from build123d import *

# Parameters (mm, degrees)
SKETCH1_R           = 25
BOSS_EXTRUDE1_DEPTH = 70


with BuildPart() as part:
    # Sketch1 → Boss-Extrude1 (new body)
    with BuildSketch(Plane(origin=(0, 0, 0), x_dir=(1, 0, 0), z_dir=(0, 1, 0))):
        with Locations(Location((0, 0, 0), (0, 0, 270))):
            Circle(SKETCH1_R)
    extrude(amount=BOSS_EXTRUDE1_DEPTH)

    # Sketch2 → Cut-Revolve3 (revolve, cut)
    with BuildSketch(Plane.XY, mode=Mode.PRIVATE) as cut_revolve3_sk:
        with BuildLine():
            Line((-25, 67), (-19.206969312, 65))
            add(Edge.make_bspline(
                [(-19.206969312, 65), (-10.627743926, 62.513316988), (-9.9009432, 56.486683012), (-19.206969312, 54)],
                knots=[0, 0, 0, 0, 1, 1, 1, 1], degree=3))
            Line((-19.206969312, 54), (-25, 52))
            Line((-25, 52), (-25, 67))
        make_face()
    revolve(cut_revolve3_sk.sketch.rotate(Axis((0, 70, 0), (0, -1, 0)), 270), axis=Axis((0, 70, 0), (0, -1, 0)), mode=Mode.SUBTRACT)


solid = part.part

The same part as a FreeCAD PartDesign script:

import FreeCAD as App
import Part
import Sketcher

V = App.Vector
Q = App.Units.Quantity

doc = App.newDocument("Part")
body = doc.addObject("PartDesign::Body", "Body")

# Sketch on XZ plane
sketch1 = doc.addObject("Sketcher::SketchObject", "Sketch")
body.addObject(sketch1)
sketch1.AttachmentSupport = (doc.XZ_Plane, [""])
sketch1.MapMode = "FlatFace"
sketch1.addGeometry(Part.Circle(V(0, 0, 0), V(0, 0, 1), 25), False)
sketch1.addConstraint(Sketcher.Constraint("Coincident", 0, 3, -1, 1))
sketch1.addConstraint(Sketcher.Constraint("Diameter", 0, Q("50 mm")))
pad1 = doc.addObject("PartDesign::Pad", "Pad")
body.addObject(pad1)
pad1.Profile = sketch1
pad1.Length = 70
pad1.Reversed = True

# Sketch on XY plane
sketch2 = doc.addObject("Sketcher::SketchObject", "Sketch001")
body.addObject(sketch2)
sketch2.AttachmentSupport = (doc.XY_Plane, [""])
sketch2.MapMode = "FlatFace"
sketch2.addGeometry(Part.LineSegment(V(-19.206969, 65, 0), V(-25, 67, 0)), False)
sketch2.addGeometry(Part.LineSegment(V(-25, 67, 0), V(-25, 52, 0)), False)
sketch2.addGeometry(Part.LineSegment(V(-25, 52, 0), V(-19.206969, 54, 0)), False)
sketch2.addGeometry(Part.BSplineCurve([V(-19.206969, 65, 0), V(-10.627744, 62.513317, 0), V(-9.900943, 56.486683, 0), V(-19.206969, 54, 0)], [4, 4], [0, 1], False, 3, [1, 1, 1, 1], False), False)
sketch2.addConstraint(Sketcher.Constraint("Block", 3))
sketch2.addConstraint(Sketcher.Constraint("Coincident", 0, 2, 1, 1))
sketch2.addConstraint(Sketcher.Constraint("Coincident", 1, 2, 2, 1))
sketch2.addConstraint(Sketcher.Constraint("Coincident", 2, 2, 3, 2))
sketch2.addConstraint(Sketcher.Constraint("Coincident", 3, 1, 0, 1))
sketch2.addConstraint(Sketcher.Constraint("Vertical", 1))
sketch2.addConstraint(Sketcher.Constraint("Equal", 0, 2))
sketch2.addConstraint(Sketcher.Constraint("DistanceY", 1, 2, 1, 1, Q("15 mm")))
sketch2.addConstraint(Sketcher.Constraint("DistanceX", 0, 2, -1, 1, Q("25 mm")))
groove = doc.addObject("PartDesign::Groove", "Groove")
body.addObject(groove)
groove.Profile = sketch2
groove.ReferenceAxis = (sketch2, ["V_Axis"])
groove.Angle = 360

doc.recompute()
